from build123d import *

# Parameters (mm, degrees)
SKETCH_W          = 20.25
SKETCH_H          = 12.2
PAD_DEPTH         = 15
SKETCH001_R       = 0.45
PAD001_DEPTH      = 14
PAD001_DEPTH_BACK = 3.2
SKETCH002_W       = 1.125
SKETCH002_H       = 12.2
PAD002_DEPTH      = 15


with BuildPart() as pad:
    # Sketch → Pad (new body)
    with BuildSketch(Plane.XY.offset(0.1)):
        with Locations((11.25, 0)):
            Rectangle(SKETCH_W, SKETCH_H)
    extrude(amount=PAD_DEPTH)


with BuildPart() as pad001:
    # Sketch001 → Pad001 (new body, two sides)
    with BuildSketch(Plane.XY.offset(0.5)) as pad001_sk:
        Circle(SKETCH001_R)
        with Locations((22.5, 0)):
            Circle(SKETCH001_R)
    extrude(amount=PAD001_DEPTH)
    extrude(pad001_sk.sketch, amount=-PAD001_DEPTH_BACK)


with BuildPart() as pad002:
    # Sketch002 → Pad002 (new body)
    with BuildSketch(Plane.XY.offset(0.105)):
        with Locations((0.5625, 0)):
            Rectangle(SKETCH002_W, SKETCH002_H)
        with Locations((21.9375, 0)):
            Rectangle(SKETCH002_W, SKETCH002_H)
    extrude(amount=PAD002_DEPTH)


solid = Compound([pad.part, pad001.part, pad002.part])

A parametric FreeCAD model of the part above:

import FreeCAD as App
import Part
import Sketcher

V = App.Vector
Q = App.Units.Quantity

doc = App.newDocument("Part")
body = doc.addObject("PartDesign::Body", "Body")

sketch1 = doc.addObject("Sketcher::SketchObject", "Sketch")
body.addObject(sketch1)
sketch1.AttachmentSupport = (doc.XY_Plane, [""])
sketch1.MapMode = "FlatFace"
sketch1.AttachmentOffset = App.Placement(V(0, 0, 0.1), App.Rotation())
sketch1.addGeometry([
    Part.LineSegment(V(1, 6, 0), V(1, -6, 0)),
    Part.LineSegment(V(1, -6, 0), V(21, -6, 0)),
    Part.LineSegment(V(21, -6, 0), V(21, 6, 0)),
    Part.LineSegment(V(21, 6, 0), V(1, 6, 0)),
], False)
sketch1.addConstraint([
    Sketcher.Constraint("Coincident", 0, 2, 1, 1),
    Sketcher.Constraint("Coincident", 1, 2, 2, 1),
    Sketcher.Constraint("Coincident", 2, 2, 3, 1),
    Sketcher.Constraint("Coincident", 3, 2, 0, 1),
    Sketcher.Constraint("Vertical", 0),
    Sketcher.Constraint("Horizontal", 1),
    Sketcher.Constraint("Vertical", 2),
    Sketcher.Constraint("Horizontal", 3),
    Sketcher.Constraint("DistanceY", 0, 2, 0, 1, Q("12.2 mm")),
    Sketcher.Constraint("DistanceX", 1, 1, 1, 2, Q("20.25 mm")),
    Sketcher.Constraint("DistanceY", 0, 2, -1, 1, Q("6.1 mm")),
    Sketcher.Constraint("DistanceX", -1, 1, 0, 2, Q("1.125 mm")),
])
pad1 = doc.addObject("PartDesign::Pad", "Pad")
body.addObject(pad1)
pad1.Profile = sketch1
pad1.Length = 15
body2 = doc.addObject("PartDesign::Body", "Body001")
body2.AllowCompound = True

sketch2 = doc.addObject("Sketcher::SketchObject", "Sketch001")
body2.addObject(sketch2)
sketch2.AttachmentSupport = (doc.getObject("XY_Plane001"), [""])
sketch2.MapMode = "FlatFace"
sketch2.AttachmentOffset = App.Placement(V(0, 0, 0.5), App.Rotation())
sketch2.addGeometry([
    Part.Circle(V(0, 0, 0), V(0, 0, 1), 0.45),
    Part.Circle(V(22.5, 0, 0), V(0, 0, 1), 0.45),
], False)
sketch2.addConstraint([
    Sketcher.Constraint("Coincident", 0, 3, -1, 1),
    Sketcher.Constraint("Equal", 0, 1),
    Sketcher.Constraint("PointOnObject", 1, 3, -1),
    Sketcher.Constraint("Diameter", 0, Q("0.9 mm")),
    Sketcher.Constraint("DistanceX", -1, 1, 1, 3, Q("22.5 mm")),
])
pad2 = doc.addObject("PartDesign::Pad", "Pad001")
body2.addObject(pad2)
pad2.Profile = sketch2
pad2.Type = "TwoLengths"
pad2.Length = 14
pad2.Length2 = 3.2
body3 = doc.addObject("PartDesign::Body", "Body002")
body3.AllowCompound = True

sketch3 = doc.addObject("Sketcher::SketchObject", "Sketch002")
body3.addObject(sketch3)
sketch3.AttachmentSupport = (doc.getObject("XY_Plane002"), [""])
sketch3.MapMode = "FlatFace"
sketch3.AttachmentOffset = App.Placement(V(0, 0, 0.105), App.Rotation())
sketch3.addGeometry([
    Part.LineSegment(V(0, 6.1, 0), V(0, -6.1, 0)),
    Part.LineSegment(V(0, -6.1, 0), V(1.1, -6.1, 0)),
    Part.LineSegment(V(1.1, -6.1, 0), V(1.1, 6.1, 0)),
    Part.LineSegment(V(1.1, 6.1, 0), V(0, 6.1, 0)),
    Part.LineSegment(V(21.4, 6.1, 0), V(21.4, -6.1, 0)),
    Part.LineSegment(V(21.4, -6.1, 0), V(22.5, -6.1, 0)),
    Part.LineSegment(V(22.5, -6.1, 0), V(22.5, 6.1, 0)),
    Part.LineSegment(V(22.5, 6.1, 0), V(21.4, 6.1, 0)),
], False)
sketch3.addConstraint([
    Sketcher.Constraint("Coincident", 0, 2, 1, 1),
    Sketcher.Constraint("Coincident", 1, 2, 2, 1),
    Sketcher.Constraint("Coincident", 2, 2, 3, 1),
    Sketcher.Constraint("Coincident", 3, 2, 0, 1),
    Sketcher.Constraint("Coincident", 4, 2, 5, 1),
    Sketcher.Constraint("Coincident", 5, 2, 6, 1),
    Sketcher.Constraint("Coincident", 6, 2, 7, 1),
    Sketcher.Constraint("Coincident", 7, 2, 4, 1),
    Sketcher.Constraint("Vertical", 0),
    Sketcher.Constraint("Horizontal", 1),
    Sketcher.Constraint("Vertical", 2),
    Sketcher.Constraint("Horizontal", 3),
    Sketcher.Constraint("Vertical", 4),
    Sketcher.Constraint("Horizontal", 5),
    Sketcher.Constraint("Vertical", 6),
    Sketcher.Constraint("Horizontal", 7),
    Sketcher.Constraint("Symmetric", 0, 2, 3, 2, -1, 1),
    Sketcher.Constraint("Horizontal", 1, 2, 4, 2),
    Sketcher.Constraint("Horizontal", 3, 2, 6, 2),
    Sketcher.Constraint("Equal", 3, 5),
    Sketcher.Constraint("DistanceY", 0, 2, 0, 1, Q("12.2 mm")),
    Sketcher.Constraint("DistanceX", -1, 1, 5, 2, Q("22.5 mm")),
    Sketcher.Constraint("DistanceX", 1, 1, 1, 2, Q("1.125 mm")),
])
pad3 = doc.addObject("PartDesign::Pad", "Pad002")
body3.addObject(pad3)
pad3.Profile = sketch3
pad3.Length = 15

doc.recompute()
